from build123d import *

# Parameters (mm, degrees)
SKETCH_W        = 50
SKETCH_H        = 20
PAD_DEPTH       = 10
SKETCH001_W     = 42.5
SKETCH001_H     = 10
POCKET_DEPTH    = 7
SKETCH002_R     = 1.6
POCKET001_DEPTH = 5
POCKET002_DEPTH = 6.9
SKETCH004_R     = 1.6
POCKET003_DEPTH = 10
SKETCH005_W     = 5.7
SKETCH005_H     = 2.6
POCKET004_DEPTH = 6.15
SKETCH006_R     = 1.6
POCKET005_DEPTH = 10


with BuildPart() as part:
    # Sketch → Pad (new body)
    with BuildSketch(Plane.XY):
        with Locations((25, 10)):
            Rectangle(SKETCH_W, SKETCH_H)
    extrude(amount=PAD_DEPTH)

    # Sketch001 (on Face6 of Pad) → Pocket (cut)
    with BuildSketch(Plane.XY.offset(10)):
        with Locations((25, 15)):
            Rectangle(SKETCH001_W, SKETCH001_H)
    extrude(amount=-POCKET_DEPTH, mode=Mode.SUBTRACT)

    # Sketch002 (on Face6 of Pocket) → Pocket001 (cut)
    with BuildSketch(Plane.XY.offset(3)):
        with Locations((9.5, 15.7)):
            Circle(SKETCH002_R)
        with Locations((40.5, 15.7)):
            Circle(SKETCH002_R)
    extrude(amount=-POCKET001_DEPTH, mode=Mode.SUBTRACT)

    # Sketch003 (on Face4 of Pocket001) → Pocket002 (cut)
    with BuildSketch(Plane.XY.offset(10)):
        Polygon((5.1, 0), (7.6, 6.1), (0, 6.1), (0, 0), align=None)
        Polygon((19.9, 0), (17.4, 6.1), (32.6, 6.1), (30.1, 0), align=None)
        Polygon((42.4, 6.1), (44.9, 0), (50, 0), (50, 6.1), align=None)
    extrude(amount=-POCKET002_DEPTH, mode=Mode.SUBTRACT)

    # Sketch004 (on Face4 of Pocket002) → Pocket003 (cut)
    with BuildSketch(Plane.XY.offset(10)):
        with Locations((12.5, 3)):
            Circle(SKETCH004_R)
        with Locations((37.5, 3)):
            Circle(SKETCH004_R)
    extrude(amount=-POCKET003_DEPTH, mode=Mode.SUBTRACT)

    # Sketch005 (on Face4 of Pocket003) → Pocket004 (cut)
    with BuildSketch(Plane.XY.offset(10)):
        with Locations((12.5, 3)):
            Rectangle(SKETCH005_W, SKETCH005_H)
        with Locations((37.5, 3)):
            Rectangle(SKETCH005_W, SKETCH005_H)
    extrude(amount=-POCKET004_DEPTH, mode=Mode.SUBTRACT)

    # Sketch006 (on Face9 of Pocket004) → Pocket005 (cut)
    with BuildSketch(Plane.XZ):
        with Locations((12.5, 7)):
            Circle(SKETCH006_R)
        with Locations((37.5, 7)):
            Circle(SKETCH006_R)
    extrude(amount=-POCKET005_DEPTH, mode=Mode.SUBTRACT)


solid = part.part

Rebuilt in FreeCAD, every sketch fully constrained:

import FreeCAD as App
import Part
import Sketcher
Q = App.Units.Quantity


def add_polygon(sketch, points):
    """Adds a closed chain of lines whose ends are joined by coincident constraints."""
    first, n = sketch.GeometryCount, len(points)
    for a, b in zip(points, points[1:] + points[:1]):
        sketch.addGeometry(Part.LineSegment(App.Vector(*a, 0), App.Vector(*b, 0)), False)
    for i in range(n):
        sketch.addConstraint(Sketcher.Constraint("Coincident", first + i, 2, first + (i + 1) % n, 1))

doc = App.newDocument("Part")
body = doc.addObject("PartDesign::Body", "Body")

# Sketch on XY plane
sketch1 = doc.addObject("Sketcher::SketchObject", "Sketch")
body.addObject(sketch1)
sketch1.AttachmentSupport = (doc.XY_Plane, [""])
sketch1.MapMode = "FlatFace"
add_polygon(sketch1, [(0, 20), (0, 0), (50, 0), (50, 20)])  # lines 0-3
sketch1.addConstraint(Sketcher.Constraint("Vertical", 0))
sketch1.addConstraint(Sketcher.Constraint("Horizontal", 1))
sketch1.addConstraint(Sketcher.Constraint("Vertical", 2))
sketch1.addConstraint(Sketcher.Constraint("Horizontal", 3))
sketch1.addConstraint(Sketcher.Constraint("Coincident", 0, 2, -1, 1))
sketch1.addConstraint(Sketcher.Constraint("DistanceX", 1, 1, 1, 2, Q("50 mm")))
sketch1.addConstraint(Sketcher.Constraint("DistanceY", 0, 2, 0, 1, Q("20 mm")))
pad1 = doc.addObject("PartDesign::Pad", "Pad")
body.addObject(pad1)
pad1.Profile = sketch1
pad1.Length = 10

# Sketch on XY plane
sketch2 = doc.addObject("Sketcher::SketchObject", "Sketch001")
body.addObject(sketch2)
sketch2.AttachmentSupport = (doc.XY_Plane, [""])
sketch2.MapMode = "FlatFace"
sketch2.AttachmentOffset = App.Placement(App.Vector(0, 0, 10), App.Rotation())
add_polygon(sketch2, [(4, 20), (4, 10), (46, 10), (46, 20)])  # lines 0-3
sketch2.addConstraint(Sketcher.Constraint("Vertical", 0))
sketch2.addConstraint(Sketcher.Constraint("Horizontal", 1))
sketch2.addConstraint(Sketcher.Constraint("Vertical", 2))
sketch2.addConstraint(Sketcher.Constraint("Horizontal", 3))
sketch2.addConstraint(Sketcher.Constraint("DistanceY", 0, 2, 0, 1, Q("10 mm")))
sketch2.addConstraint(Sketcher.Constraint("DistanceX", 1, 1, 1, 2, Q("42.5 mm")))
sketch2.addConstraint(Sketcher.Constraint("DistanceY", -1, 1, 0, 2, Q("10 mm")))
sketch2.addConstraint(Sketcher.Constraint("DistanceX", -1, 1, 0, 2, Q("3.75 mm")))
pocket1 = doc.addObject("PartDesign::Pocket", "Pocket")
body.addObject(pocket1)
pocket1.Profile = sketch2
pocket1.Length = 7

# Sketch on XY plane
sketch3 = doc.addObject("Sketcher::SketchObject", "Sketch002")
body.addObject(sketch3)
sketch3.AttachmentSupport = (doc.XY_Plane, [""])
sketch3.MapMode = "FlatFace"
sketch3.AttachmentOffset = App.Placement(App.Vector(0, 0, 3), App.Rotation())
sketch3.addGeometry(Part.Circle(App.Vector(9.5, 15.7, 0), App.Vector(0, 0, 1), 1.6), False)
sketch3.addGeometry(Part.Circle(App.Vector(40.5, 15.7, 0), App.Vector(0, 0, 1), 1.6), False)
sketch3.addConstraint(Sketcher.Constraint("Equal", 0, 1))
sketch3.addConstraint(Sketcher.Constraint("Horizontal", 0, 3, 1, 3))
sketch3.addConstraint(Sketcher.Constraint("Diameter", 0, Q("3.2 mm")))
sketch3.addConstraint(Sketcher.Constraint("DistanceX", 0, 3, 1, 3, Q("31 mm")))
sketch3.addConstraint(Sketcher.Constraint("DistanceX", -1, 1, 0, 3, Q("9.5 mm")))
sketch3.addConstraint(Sketcher.Constraint("DistanceY", -1, 1, 0, 3, Q("15.7 mm")))
pocket2 = doc.addObject("PartDesign::Pocket", "Pocket001")
body.addObject(pocket2)
pocket2.Profile = sketch3
pocket2.Length = 5

# Sketch on XY plane
sketch4 = doc.addObject("Sketcher::SketchObject", "Sketch003")
body.addObject(sketch4)
sketch4.AttachmentSupport = (doc.XY_Plane, [""])
sketch4.MapMode = "FlatFace"
sketch4.AttachmentOffset = App.Placement(App.Vector(0, 0, 10), App.Rotation())
add_polygon(sketch4, [(5, 0), (8, 6), (0, 6), (0, 0)])  # lines 0-3
add_polygon(sketch4, [(17, 6), (20, 0), (30, 0), (33, 6)])  # lines 4-7
add_polygon(sketch4, [(42, 6), (45, 0), (50, 0), (50, 6)])  # lines 8-11
sketch4.addConstraint(Sketcher.Constraint("Horizontal", 1))
sketch4.addConstraint(Sketcher.Constraint("Vertical", 2))
sketch4.addConstraint(Sketcher.Constraint("Horizontal", 3))
sketch4.addConstraint(Sketcher.Constraint("Horizontal", 5))
sketch4.addConstraint(Sketcher.Constraint("Horizontal", 7))
sketch4.addConstraint(Sketcher.Constraint("Horizontal", 9))
sketch4.addConstraint(Sketcher.Constraint("Vertical", 10))
sketch4.addConstraint(Sketcher.Constraint("Horizontal", 11))
sketch4.addConstraint(Sketcher.Constraint("Coincident", 2, 2, -1, 1))
sketch4.addConstraint(Sketcher.Constraint("PointOnObject", 4, 2, -1))
sketch4.addConstraint(Sketcher.Constraint("PointOnObject", 8, 2, -1))
sketch4.addConstraint(Sketcher.Constraint("Parallel", 0, 6))
sketch4.addConstraint(Sketcher.Constraint("Parallel", 4, 8))
sketch4.addConstraint(Sketcher.Constraint("Horizontal", 1, 2, 6, 2))
sketch4.addConstraint(Sketcher.Constraint("Horizontal", 7, 2, 10, 2))
sketch4.addConstraint(Sketcher.Constraint("Equal", 3, 9))
sketch4.addConstraint(Sketcher.Constraint("Equal", 1, 11))
sketch4.addConstraint(Sketcher.Constraint("DistanceX", 1, 2, 1, 1, Q("7.6 mm")))
sketch4.addConstraint(Sketcher.Constraint("DistanceX", 3, 1, 3, 2, Q("5.1 mm")))
sketch4.addConstraint(Sketcher.Constraint("DistanceX", 5, 1, 5, 2, Q("10.2 mm")))
sketch4.addConstraint(Sketcher.Constraint("DistanceY", 2, 2, 2, 1, Q("6.1 mm")))
sketch4.addConstraint(Sketcher.Constraint("DistanceX", -1, 1, 9, 2, Q("50 mm")))
sketch4.addConstraint(Sketcher.Constraint("DistanceX", 3, 2, 5, 2, Q("25 mm")))
pocket3 = doc.addObject("PartDesign::Pocket", "Pocket002")
body.addObject(pocket3)
pocket3.Profile = sketch4
pocket3.Length = 6.9

# Sketch on XY plane
sketch5 = doc.addObject("Sketcher::SketchObject", "Sketch004")
body.addObject(sketch5)
sketch5.AttachmentSupport = (doc.XY_Plane, [""])
sketch5.MapMode = "FlatFace"
sketch5.AttachmentOffset = App.Placement(App.Vector(0, 0, 10), App.Rotation())
sketch5.addGeometry(Part.Circle(App.Vector(12.5, 3, 0), App.Vector(0, 0, 1), 1.6), False)
sketch5.addGeometry(Part.Circle(App.Vector(37.5, 3, 0), App.Vector(0, 0, 1), 1.6), False)
sketch5.addConstraint(Sketcher.Constraint("Equal", 0, 1))
sketch5.addConstraint(Sketcher.Constraint("Horizontal", 0, 3, 1, 3))
sketch5.addConstraint(Sketcher.Constraint("Diameter", 0, Q("3.2 mm")))
sketch5.addConstraint(Sketcher.Constraint("DistanceY", -1, 1, 0, 3, Q("3 mm")))
sketch5.addConstraint(Sketcher.Constraint("DistanceX", 0, 3, 1, 3, Q("25 mm")))
sketch5.addConstraint(Sketcher.Constraint("DistanceX", -1, 1, 0, 3, Q("12.5 mm")))
pocket4 = doc.addObject("PartDesign::Pocket", "Pocket003")
body.addObject(pocket4)
pocket4.Profile = sketch5
pocket4.Length = 10

# Sketch on XY plane
sketch6 = doc.addObject("Sketcher::SketchObject", "Sketch005")
body.addObject(sketch6)
sketch6.AttachmentSupport = (doc.XY_Plane, [""])
sketch6.MapMode = "FlatFace"
sketch6.AttachmentOffset = App.Placement(App.Vector(0, 0, 10), App.Rotation())
add_polygon(sketch6, [(9.7, 4.3), (9.7, 1.7), (15.3, 1.7), (15.3, 4.3)])  # lines 0-3
add_polygon(sketch6, [(34.6, 4.3), (34.6, 1.7), (40.4, 1.7), (40.4, 4.3)])  # lines 4-7
sketch6.addConstraint(Sketcher.Constraint("Vertical", 0))
sketch6.addConstraint(Sketcher.Constraint("Horizontal", 1))
sketch6.addConstraint(Sketcher.Constraint("Vertical", 2))
sketch6.addConstraint(Sketcher.Constraint("Horizontal", 3))
sketch6.addConstraint(Sketcher.Constraint("Vertical", 4))
sketch6.addConstraint(Sketcher.Constraint("Horizontal", 5))
sketch6.addConstraint(Sketcher.Constraint("Vertical", 6))
sketch6.addConstraint(Sketcher.Constraint("Horizontal", 7))
sketch6.addConstraint(Sketcher.Constraint("Horizontal", 1, 2, 4, 2))
sketch6.addConstraint(Sketcher.Constraint("Horizontal", 3, 2, 6, 2))
sketch6.addConstraint(Sketcher.Constraint("Equal", 3, 5))
sketch6.addConstraint(Sketcher.Constraint("DistanceX", 1, 1, 1, 2, Q("5.7 mm")))
sketch6.addConstraint(Sketcher.Constraint("DistanceY", 0, 2, 0, 1, Q("2.6 mm")))
sketch6.addConstraint(Sketcher.Constraint("DistanceX", 0, 2, 4, 2, Q("25 mm")))
sketch6.addConstraint(Sketcher.Constraint("DistanceY", -1, 1, 0, 2, Q("1.7 mm")))
sketch6.addConstraint(Sketcher.Constraint("DistanceX", -1, 1, 0, 2, Q("9.65 mm")))
pocket5 = doc.addObject("PartDesign::Pocket", "Pocket004")
body.addObject(pocket5)
pocket5.Profile = sketch6
pocket5.Length = 6.15

# Sketch on XZ plane
sketch7 = doc.addObject("Sketcher::SketchObject", "Sketch006")
body.addObject(sketch7)
sketch7.AttachmentSupport = (doc.XZ_Plane, [""])
sketch7.MapMode = "FlatFace"
sketch7.addGeometry(Part.Circle(App.Vector(12.5, 7, 0), App.Vector(0, 0, 1), 1.6), False)
sketch7.addGeometry(Part.Circle(App.Vector(37.5, 7, 0), App.Vector(0, 0, 1), 1.6), False)
sketch7.addConstraint(Sketcher.Constraint("Equal", 0, 1))
sketch7.addConstraint(Sketcher.Constraint("Horizontal", 0, 3, 1, 3))
sketch7.addConstraint(Sketcher.Constraint("Diameter", 0, Q("3.2 mm")))
sketch7.addConstraint(Sketcher.Constraint("DistanceY", -1, 1, 0, 3, Q("7 mm")))
sketch7.addConstraint(Sketcher.Constraint("DistanceX", 0, 3, 1, 3, Q("25 mm")))
sketch7.addConstraint(Sketcher.Constraint("DistanceX", -1, 1, 0, 3, Q("12.5 mm")))
pocket6 = doc.addObject("PartDesign::Pocket", "Pocket005")
body.addObject(pocket6)
pocket6.Profile = sketch7
pocket6.Length = 10

doc.recompute()
